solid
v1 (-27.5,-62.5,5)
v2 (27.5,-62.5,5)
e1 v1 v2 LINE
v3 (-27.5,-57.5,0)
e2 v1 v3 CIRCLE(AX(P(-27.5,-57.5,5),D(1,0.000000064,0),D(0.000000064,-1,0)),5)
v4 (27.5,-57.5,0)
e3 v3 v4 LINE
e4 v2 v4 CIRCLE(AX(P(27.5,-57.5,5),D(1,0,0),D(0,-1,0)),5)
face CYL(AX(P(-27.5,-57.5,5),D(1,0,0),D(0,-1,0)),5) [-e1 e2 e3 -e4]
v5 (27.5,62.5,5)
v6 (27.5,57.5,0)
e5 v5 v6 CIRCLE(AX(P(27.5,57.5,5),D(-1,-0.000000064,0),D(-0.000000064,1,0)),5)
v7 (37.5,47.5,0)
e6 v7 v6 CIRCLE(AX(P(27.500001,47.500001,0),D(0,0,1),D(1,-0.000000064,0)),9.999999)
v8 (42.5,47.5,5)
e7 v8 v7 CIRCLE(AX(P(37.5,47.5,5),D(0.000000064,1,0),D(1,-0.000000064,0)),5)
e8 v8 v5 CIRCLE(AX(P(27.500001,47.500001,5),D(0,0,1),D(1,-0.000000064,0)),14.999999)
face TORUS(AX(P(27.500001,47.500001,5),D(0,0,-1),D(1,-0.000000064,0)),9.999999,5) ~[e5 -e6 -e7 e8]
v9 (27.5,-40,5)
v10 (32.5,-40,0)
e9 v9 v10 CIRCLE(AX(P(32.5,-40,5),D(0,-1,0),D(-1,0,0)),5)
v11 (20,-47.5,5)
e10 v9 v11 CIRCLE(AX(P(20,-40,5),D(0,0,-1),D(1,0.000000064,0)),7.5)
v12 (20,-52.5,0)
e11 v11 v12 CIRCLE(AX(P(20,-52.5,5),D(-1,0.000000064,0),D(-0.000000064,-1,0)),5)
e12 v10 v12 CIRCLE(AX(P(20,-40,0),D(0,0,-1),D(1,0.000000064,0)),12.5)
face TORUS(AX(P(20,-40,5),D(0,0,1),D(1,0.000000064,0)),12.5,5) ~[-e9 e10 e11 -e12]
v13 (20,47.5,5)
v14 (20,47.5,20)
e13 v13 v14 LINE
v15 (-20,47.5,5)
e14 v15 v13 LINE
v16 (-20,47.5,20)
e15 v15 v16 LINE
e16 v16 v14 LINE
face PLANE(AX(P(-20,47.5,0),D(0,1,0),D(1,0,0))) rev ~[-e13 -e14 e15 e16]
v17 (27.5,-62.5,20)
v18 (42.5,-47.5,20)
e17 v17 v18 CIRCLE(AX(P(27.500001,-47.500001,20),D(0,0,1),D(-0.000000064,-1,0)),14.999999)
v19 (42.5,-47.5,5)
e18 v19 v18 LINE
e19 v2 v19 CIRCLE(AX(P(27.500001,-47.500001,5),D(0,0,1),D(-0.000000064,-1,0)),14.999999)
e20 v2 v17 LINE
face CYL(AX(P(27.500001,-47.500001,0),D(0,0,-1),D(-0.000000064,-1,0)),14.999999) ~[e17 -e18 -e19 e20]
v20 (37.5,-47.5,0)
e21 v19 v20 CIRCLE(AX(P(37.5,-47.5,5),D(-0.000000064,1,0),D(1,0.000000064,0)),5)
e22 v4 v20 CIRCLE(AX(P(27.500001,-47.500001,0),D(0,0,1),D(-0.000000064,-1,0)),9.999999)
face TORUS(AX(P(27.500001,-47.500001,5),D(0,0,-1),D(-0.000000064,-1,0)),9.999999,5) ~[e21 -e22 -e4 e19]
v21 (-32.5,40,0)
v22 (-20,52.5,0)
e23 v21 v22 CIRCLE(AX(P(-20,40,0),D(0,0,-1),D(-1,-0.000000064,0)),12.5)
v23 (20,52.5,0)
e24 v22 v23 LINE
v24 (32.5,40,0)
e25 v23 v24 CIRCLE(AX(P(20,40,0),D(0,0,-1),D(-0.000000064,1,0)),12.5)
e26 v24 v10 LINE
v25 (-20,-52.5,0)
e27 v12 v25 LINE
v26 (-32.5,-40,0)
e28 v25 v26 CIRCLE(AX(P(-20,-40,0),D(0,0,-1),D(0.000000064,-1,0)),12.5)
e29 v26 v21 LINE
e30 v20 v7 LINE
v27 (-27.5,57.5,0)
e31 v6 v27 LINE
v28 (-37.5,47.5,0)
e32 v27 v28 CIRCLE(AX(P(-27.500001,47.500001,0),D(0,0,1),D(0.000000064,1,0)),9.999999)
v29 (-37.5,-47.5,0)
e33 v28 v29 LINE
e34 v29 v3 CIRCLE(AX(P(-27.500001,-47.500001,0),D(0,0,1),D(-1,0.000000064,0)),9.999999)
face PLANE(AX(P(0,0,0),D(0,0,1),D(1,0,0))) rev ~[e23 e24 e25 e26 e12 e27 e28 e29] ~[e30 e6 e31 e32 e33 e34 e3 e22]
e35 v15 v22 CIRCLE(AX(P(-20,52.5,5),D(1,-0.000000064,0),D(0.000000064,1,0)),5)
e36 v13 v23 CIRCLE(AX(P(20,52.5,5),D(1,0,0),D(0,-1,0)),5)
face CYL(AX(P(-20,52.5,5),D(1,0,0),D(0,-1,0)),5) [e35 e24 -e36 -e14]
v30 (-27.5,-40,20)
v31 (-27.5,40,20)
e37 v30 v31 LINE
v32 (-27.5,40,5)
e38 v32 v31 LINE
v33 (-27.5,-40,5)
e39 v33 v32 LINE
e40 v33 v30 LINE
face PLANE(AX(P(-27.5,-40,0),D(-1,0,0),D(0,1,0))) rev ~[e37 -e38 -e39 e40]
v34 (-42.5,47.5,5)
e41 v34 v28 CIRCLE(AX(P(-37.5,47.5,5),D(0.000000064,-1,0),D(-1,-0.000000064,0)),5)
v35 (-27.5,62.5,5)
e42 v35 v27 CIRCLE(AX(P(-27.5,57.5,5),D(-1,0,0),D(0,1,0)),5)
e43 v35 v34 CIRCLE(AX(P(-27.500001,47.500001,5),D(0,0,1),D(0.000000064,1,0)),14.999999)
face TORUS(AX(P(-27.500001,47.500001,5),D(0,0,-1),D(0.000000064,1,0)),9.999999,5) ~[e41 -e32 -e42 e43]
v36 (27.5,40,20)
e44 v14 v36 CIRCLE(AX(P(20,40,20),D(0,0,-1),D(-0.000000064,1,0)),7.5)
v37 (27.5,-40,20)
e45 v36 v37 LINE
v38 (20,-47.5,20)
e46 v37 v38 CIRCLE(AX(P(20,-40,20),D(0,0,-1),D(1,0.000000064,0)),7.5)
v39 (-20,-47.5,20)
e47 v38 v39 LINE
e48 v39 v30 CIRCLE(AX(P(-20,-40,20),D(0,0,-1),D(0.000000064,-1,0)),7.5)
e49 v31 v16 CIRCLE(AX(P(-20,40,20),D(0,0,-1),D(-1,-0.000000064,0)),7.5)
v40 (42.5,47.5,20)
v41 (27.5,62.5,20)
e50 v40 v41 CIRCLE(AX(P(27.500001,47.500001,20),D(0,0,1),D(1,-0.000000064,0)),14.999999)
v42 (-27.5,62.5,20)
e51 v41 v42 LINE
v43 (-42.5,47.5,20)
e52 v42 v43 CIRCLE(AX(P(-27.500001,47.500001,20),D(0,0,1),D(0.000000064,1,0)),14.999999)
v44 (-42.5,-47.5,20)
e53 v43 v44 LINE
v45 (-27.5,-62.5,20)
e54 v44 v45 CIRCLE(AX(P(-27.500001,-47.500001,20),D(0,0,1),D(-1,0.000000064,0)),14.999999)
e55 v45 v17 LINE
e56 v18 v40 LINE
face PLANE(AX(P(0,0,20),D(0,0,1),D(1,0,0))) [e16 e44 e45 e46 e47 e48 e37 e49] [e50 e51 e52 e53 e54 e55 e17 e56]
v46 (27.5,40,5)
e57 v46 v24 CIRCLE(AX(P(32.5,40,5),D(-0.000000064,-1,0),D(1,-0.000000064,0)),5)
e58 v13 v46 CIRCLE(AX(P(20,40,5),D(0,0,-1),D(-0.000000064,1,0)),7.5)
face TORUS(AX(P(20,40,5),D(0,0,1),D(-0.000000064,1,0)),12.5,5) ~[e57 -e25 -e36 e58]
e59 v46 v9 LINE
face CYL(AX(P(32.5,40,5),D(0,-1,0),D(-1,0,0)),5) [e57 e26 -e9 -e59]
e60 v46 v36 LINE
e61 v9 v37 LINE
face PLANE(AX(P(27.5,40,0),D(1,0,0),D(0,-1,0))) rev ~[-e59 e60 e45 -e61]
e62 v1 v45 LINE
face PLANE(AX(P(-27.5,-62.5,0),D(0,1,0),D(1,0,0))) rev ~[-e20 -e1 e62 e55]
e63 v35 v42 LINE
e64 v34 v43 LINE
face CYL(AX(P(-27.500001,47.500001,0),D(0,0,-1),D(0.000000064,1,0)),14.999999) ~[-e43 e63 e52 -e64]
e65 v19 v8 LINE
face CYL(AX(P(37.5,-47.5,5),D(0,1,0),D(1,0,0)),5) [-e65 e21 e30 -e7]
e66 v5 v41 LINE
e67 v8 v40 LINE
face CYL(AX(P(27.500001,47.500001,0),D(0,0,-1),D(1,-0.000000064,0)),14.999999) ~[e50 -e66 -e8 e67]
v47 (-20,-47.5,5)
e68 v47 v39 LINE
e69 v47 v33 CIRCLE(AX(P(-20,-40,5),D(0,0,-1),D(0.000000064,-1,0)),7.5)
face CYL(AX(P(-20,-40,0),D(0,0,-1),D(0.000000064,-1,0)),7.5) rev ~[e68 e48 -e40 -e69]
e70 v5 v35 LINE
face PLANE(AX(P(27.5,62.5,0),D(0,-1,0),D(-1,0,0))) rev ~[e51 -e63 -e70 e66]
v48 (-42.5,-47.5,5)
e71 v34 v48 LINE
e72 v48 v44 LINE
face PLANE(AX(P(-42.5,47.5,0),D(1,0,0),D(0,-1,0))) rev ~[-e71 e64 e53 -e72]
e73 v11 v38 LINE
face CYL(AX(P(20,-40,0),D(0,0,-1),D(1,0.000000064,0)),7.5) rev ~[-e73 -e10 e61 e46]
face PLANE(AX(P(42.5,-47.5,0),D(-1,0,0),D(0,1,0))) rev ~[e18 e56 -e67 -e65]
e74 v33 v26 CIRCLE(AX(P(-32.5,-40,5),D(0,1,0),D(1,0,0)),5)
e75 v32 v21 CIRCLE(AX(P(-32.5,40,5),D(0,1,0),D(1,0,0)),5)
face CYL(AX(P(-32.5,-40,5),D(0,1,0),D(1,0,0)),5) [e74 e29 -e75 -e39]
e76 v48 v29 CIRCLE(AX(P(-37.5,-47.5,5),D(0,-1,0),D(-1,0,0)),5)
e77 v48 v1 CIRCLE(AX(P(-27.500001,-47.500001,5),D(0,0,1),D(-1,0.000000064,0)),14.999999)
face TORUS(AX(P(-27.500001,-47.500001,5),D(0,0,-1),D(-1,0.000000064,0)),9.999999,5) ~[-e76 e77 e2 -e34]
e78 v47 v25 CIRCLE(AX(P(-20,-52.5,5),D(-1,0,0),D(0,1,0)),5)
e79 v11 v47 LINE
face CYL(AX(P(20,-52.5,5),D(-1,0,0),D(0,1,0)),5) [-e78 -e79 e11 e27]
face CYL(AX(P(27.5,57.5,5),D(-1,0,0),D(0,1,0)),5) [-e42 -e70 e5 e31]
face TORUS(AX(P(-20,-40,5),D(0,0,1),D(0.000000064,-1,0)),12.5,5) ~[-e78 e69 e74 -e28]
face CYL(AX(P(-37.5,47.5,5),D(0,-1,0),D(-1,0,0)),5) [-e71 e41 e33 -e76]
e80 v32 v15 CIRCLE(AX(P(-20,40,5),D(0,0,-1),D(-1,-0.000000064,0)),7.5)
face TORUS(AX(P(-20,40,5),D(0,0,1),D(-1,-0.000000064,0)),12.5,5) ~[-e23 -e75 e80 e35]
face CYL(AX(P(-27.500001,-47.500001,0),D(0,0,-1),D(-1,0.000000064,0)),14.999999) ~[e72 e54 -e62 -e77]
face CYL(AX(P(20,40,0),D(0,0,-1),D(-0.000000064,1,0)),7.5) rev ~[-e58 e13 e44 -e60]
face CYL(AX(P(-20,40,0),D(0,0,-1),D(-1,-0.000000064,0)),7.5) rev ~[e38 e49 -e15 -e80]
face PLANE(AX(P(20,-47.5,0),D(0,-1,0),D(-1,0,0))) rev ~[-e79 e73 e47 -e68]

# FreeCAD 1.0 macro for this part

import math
import FreeCAD as App
import Part
import Sketcher
Q = App.Units.Quantity


def edges_at(feature, points):
    """Names of the edges that pass closest to the given points."""
    edges = feature.Shape.Edges
    near = lambda p: min(range(len(edges)), key=lambda i: edges[i].distToShape(Part.Vertex(*p))[0])
    return sorted({f"Edge{near(p) + 1}" for p in points})

doc = App.newDocument("Part")
params = doc.addObject("Spreadsheet::Sheet", "Params")
for row, (alias, value) in enumerate([
    ("sketch1_radius", "14.999999 mm"),
    ("sketch1_radius2", "7.5 mm"),
    ("sketch1_width", "55 mm"),
    ("sketch1_height", "95 mm"),
    ("pad1_length", "20 mm"),
    ("fillet_radius", "5 mm"),
], start=1):
    params.set(f"A{row}", alias)
    params.set(f"B{row}", "=" + value)
    params.setAlias(f"B{row}", alias)

body = doc.addObject("PartDesign::Body", "Body")

# Sketch on XY plane
sketch1 = body.newObject("Sketcher::SketchObject", "Sketch")
sketch1.AttachmentSupport = (doc.getObject("XY_Plane"), [""])
sketch1.MapMode = "FlatFace"
sketch1.addGeometry(Part.ArcOfCircle(Part.Circle(App.Vector(28, 48, 0), App.Vector(0, 0, 1), 15), math.radians(0), math.radians(90)), False)
sketch1.addGeometry(Part.LineSegment(App.Vector(28, 62, 0), App.Vector(-28, 62, 0)), False)
sketch1.addGeometry(Part.ArcOfCircle(Part.Circle(App.Vector(-28, 48, 0), App.Vector(0, 0, 1), 15), math.radians(90), math.radians(180)), False)
sketch1.addGeometry(Part.LineSegment(App.Vector(-42, 48, 0), App.Vector(-42, -48, 0)), False)
sketch1.addGeometry(Part.ArcOfCircle(Part.Circle(App.Vector(-28, -48, 0), App.Vector(0, 0, 1), 15), math.radians(180), math.radians(270)), False)
sketch1.addGeometry(Part.LineSegment(App.Vector(-28, -62, 0), App.Vector(28, -62, 0)), False)
sketch1.addGeometry(Part.ArcOfCircle(Part.Circle(App.Vector(28, -48, 0), App.Vector(0, 0, 1), 15), math.radians(-90), math.radians(0)), False)
sketch1.addGeometry(Part.LineSegment(App.Vector(42, -48, 0), App.Vector(42, 48, 0)), False)
sketch1.addGeometry(Part.ArcOfCircle(Part.Circle(App.Vector(-20, 40, 0), App.Vector(0, 0, 1), 7), math.radians(90), math.radians(180)), False)
sketch1.addGeometry(Part.LineSegment(App.Vector(-20, 48, 0), App.Vector(20, 48, 0)), False)
sketch1.addGeometry(Part.ArcOfCircle(Part.Circle(App.Vector(20, 40, 0), App.Vector(0, 0, 1), 7), math.radians(0), math.radians(90)), False)
sketch1.addGeometry(Part.LineSegment(App.Vector(28, 40, 0), App.Vector(28, -40, 0)), False)
sketch1.addGeometry(Part.ArcOfCircle(Part.Circle(App.Vector(20, -40, 0), App.Vector(0, 0, 1), 7), math.radians(-90), math.radians(0)), False)
sketch1.addGeometry(Part.LineSegment(App.Vector(20, -48, 0), App.Vector(-20, -48, 0)), False)
sketch1.addGeometry(Part.ArcOfCircle(Part.Circle(App.Vector(-20, -40, 0), App.Vector(0, 0, 1), 7), math.radians(180), math.radians(270)), False)
sketch1.addGeometry(Part.LineSegment(App.Vector(-28, -40, 0), App.Vector(-28, 40, 0)), False)
sketch1.addConstraint(Sketcher.Constraint("Tangent", 0, 2, 1, 1))
sketch1.addConstraint(Sketcher.Constraint("Tangent", 1, 2, 2, 1))
sketch1.addConstraint(Sketcher.Constraint("Tangent", 2, 2, 3, 1))
sketch1.addConstraint(Sketcher.Constraint("Tangent", 3, 2, 4, 1))
sketch1.addConstraint(Sketcher.Constraint("Tangent", 4, 2, 5, 1))
sketch1.addConstraint(Sketcher.Constraint("Tangent", 5, 2, 6, 1))
sketch1.addConstraint(Sketcher.Constraint("Tangent", 6, 2, 7, 1))
sketch1.addConstraint(Sketcher.Constraint("Tangent", 7, 2, 0, 1))
sketch1.addConstraint(Sketcher.Constraint("Tangent", 8, 1, 9, 1))
sketch1.addConstraint(Sketcher.Constraint("Tangent", 9, 2, 10, 2))
sketch1.addConstraint(Sketcher.Constraint("Tangent", 10, 1, 11, 1))
sketch1.addConstraint(Sketcher.Constraint("Tangent", 11, 2, 12, 2))
sketch1.addConstraint(Sketcher.Constraint("Tangent", 12, 1, 13, 1))
sketch1.addConstraint(Sketcher.Constraint("Tangent", 13, 2, 14, 2))
sketch1.addConstraint(Sketcher.Constraint("Tangent", 14, 1, 15, 1))
sketch1.addConstraint(Sketcher.Constraint("Tangent", 15, 2, 8, 2))
sketch1.addConstraint(Sketcher.Constraint("Horizontal", 1))
sketch1.addConstraint(Sketcher.Constraint("Vertical", 3))
sketch1.addConstraint(Sketcher.Constraint("Horizontal", 5))
sketch1.addConstraint(Sketcher.Constraint("Vertical", 7))
sketch1.addConstraint(Sketcher.Constraint("Horizontal", 9))
sketch1.addConstraint(Sketcher.Constraint("Vertical", 11))
sketch1.addConstraint(Sketcher.Constraint("Horizontal", 13))
sketch1.addConstraint(Sketcher.Constraint("Vertical", 15))
sketch1.addConstraint(Sketcher.Constraint("Equal", 0, 2))
sketch1.addConstraint(Sketcher.Constraint("Equal", 2, 4))
sketch1.addConstraint(Sketcher.Constraint("Equal", 4, 6))
sketch1.addConstraint(Sketcher.Constraint("Equal", 8, 10))
sketch1.addConstraint(Sketcher.Constraint("Equal", 10, 12))
sketch1.addConstraint(Sketcher.Constraint("Equal", 12, 14))
sketch1.addConstraint(Sketcher.Constraint("Symmetric", 0, 3, 4, 3, -1, 1))
sketch1.addConstraint(Sketcher.Constraint("Symmetric", 8, 3, 12, 3, -1, 1))
sketch1.addConstraint(Sketcher.Constraint("Horizontal", 7, 2, 8, 1))
sketch1.addConstraint(Sketcher.Constraint("Vertical", 5, 2, 10, 1))
sketch1.addConstraint(Sketcher.Constraint("Radius", 0, Q("14.999999 mm")))
sketch1.addConstraint(Sketcher.Constraint("Radius", 8, Q("7.5 mm")))
sketch1.addConstraint(Sketcher.Constraint("DistanceX", 1, 2, 1, 1, Q("55 mm")))
sketch1.addConstraint(Sketcher.Constraint("DistanceY", 3, 2, 3, 1, Q("95 mm")))
sketch1.setExpression("Constraints[34]", "Params.sketch1_radius")
sketch1.setExpression("Constraints[35]", "Params.sketch1_radius2")
sketch1.setExpression("Constraints[36]", "Params.sketch1_width")
sketch1.setExpression("Constraints[37]", "Params.sketch1_height")
pad1 = body.newObject("PartDesign::Pad", "Pad")
pad1.Profile = sketch1
pad1.setExpression("Length", "Params.pad1_length")
doc.recompute()

fillet = body.newObject("PartDesign::Fillet", "Fillet")
fillet.Base = (pad1, edges_at(pad1, [
    (38.107, 58.107, 0),
    (0, 62.5, 0),
    (-38.107, 58.107, 0),
    (-42.5, 0, 0),
    (-38.107, -58.107, 0),
    (0, -62.5, 0),
    (38.107, -58.107, 0),
    (42.5, 0, 0),
    (-27.5, 0, 0),
    (-25.303, 45.303, 0),
    (0, 47.5, 0),
    (25.303, 45.303, 0),
    (27.5, 0, 0),
    (25.303, -45.303, 0),
    (0, -47.5, 0),
    (-25.303, -45.303, 0),
]))
fillet.setExpression("Radius", "Params.fillet_radius")

doc.recompute()
